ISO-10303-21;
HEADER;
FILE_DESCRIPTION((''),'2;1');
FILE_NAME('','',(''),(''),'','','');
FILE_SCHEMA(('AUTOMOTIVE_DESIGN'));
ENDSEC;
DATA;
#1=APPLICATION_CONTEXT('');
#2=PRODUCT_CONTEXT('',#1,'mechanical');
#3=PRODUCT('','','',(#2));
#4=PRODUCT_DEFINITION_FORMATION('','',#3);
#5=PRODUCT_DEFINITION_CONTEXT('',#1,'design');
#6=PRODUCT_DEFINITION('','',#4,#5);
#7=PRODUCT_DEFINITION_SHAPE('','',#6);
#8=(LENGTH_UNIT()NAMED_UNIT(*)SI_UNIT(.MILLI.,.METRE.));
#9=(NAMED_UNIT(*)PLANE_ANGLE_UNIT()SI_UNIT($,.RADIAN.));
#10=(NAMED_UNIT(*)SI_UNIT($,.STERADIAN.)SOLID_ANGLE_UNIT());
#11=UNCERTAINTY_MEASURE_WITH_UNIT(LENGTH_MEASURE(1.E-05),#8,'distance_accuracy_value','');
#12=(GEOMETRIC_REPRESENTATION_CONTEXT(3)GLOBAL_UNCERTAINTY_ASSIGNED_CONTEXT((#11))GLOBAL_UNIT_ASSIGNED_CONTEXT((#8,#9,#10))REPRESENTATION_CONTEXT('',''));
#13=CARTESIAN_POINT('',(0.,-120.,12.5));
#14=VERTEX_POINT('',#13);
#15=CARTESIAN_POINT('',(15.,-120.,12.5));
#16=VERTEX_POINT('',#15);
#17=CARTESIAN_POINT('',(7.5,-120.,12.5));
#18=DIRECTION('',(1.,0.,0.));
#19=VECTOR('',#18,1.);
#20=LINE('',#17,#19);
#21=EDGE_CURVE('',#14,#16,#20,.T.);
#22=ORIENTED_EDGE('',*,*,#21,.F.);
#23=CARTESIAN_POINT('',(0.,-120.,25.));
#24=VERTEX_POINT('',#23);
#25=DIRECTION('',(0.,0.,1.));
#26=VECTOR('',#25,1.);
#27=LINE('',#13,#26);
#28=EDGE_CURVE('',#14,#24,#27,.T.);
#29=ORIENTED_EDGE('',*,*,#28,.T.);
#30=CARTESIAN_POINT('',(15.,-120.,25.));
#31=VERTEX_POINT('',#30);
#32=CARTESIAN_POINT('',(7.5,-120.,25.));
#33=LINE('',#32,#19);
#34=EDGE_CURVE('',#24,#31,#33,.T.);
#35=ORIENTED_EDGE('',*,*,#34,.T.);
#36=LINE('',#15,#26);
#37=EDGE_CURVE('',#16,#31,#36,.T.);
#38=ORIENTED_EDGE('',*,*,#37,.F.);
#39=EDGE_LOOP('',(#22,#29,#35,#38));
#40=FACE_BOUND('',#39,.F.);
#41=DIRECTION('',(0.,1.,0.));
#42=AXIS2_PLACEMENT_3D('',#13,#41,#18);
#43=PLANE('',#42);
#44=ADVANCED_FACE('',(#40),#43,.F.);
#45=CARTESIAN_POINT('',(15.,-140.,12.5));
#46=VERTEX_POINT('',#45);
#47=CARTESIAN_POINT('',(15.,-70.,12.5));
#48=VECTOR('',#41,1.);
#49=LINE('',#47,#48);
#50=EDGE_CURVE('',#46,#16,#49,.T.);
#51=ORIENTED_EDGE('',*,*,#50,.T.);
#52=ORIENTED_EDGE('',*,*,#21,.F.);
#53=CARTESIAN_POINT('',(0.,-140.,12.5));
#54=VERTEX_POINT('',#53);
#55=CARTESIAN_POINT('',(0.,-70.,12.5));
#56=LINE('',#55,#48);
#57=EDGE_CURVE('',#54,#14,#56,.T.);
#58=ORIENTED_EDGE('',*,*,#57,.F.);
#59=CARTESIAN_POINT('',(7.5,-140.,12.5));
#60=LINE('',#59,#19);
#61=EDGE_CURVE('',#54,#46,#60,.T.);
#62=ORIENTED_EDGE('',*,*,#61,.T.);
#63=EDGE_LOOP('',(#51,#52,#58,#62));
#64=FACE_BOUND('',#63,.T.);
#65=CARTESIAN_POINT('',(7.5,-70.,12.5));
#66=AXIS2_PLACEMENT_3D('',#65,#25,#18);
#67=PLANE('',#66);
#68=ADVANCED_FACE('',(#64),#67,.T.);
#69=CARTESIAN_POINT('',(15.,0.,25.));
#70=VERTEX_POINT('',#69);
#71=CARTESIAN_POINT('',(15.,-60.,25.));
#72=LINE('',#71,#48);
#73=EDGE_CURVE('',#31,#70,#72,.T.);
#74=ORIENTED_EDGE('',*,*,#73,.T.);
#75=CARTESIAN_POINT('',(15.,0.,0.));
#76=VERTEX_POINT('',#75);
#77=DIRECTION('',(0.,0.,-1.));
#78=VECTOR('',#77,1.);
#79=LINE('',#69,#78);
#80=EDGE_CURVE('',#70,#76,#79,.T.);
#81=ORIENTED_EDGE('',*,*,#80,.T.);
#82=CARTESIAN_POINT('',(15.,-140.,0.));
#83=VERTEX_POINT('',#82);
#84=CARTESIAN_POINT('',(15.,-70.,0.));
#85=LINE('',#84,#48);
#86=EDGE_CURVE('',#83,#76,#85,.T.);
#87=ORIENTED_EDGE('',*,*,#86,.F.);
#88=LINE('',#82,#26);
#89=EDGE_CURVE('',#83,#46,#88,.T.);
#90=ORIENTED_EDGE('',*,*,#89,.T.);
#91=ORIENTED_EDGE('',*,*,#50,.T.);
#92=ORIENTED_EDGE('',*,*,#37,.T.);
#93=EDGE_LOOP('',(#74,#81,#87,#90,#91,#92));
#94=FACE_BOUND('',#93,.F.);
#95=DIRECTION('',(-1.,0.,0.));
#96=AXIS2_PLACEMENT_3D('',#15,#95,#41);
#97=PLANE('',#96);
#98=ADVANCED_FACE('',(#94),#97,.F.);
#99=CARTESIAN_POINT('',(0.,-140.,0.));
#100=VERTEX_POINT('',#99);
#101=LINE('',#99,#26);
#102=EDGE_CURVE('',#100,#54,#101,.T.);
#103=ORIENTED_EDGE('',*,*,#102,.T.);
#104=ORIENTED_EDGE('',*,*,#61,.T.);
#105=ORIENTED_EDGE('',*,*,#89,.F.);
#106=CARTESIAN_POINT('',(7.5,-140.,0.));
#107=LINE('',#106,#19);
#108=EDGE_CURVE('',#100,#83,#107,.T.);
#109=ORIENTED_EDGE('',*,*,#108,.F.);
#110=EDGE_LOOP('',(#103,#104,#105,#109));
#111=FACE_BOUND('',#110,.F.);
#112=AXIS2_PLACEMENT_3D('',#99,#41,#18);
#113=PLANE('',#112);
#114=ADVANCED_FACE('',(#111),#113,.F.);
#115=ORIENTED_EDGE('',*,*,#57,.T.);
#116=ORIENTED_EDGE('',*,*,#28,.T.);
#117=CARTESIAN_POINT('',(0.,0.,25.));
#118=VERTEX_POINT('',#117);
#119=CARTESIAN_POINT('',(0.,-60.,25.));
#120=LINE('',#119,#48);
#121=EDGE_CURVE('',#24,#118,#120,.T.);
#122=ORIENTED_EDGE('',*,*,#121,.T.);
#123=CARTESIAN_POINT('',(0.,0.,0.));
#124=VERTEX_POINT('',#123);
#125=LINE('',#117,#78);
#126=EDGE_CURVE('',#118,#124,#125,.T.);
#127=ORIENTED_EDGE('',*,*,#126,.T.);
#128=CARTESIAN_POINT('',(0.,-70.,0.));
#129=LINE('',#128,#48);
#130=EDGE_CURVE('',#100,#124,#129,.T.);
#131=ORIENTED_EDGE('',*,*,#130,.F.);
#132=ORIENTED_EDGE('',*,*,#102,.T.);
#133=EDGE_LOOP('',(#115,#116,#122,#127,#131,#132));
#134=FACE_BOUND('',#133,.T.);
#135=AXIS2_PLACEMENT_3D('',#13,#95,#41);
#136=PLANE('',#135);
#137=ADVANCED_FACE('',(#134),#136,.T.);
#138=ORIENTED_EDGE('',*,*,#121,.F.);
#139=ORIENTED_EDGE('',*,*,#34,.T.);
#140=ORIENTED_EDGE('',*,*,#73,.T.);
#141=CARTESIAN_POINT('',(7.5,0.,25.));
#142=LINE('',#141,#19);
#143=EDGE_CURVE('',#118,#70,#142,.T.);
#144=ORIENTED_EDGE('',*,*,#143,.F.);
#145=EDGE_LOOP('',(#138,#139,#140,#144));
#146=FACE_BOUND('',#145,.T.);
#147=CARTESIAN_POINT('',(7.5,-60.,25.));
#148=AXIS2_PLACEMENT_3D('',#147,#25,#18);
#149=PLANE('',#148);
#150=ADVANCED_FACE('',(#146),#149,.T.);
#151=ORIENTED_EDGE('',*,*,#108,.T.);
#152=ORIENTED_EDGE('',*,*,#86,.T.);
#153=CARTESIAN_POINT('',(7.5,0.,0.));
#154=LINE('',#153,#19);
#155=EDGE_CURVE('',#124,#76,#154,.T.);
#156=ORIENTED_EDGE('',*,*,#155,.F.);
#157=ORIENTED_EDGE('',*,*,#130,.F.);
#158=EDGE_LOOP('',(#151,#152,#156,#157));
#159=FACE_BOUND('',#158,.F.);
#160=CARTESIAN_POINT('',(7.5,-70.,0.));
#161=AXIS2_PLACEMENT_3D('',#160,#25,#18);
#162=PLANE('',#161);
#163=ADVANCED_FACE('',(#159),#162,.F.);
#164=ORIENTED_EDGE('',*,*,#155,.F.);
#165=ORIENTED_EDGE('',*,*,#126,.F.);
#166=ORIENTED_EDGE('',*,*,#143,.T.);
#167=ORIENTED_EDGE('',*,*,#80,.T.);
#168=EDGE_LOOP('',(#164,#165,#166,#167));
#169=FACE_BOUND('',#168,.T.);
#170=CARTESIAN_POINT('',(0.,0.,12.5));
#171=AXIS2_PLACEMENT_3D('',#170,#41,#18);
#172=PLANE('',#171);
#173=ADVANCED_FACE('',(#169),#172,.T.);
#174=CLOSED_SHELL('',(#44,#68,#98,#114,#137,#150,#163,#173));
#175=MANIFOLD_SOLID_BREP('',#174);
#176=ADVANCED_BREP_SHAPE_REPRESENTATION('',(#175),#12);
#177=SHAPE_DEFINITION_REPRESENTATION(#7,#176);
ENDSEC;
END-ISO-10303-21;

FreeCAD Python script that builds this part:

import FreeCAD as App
import Part
import Sketcher

doc = App.newDocument("Part")
body = doc.addObject("PartDesign::Body", "Body")

sketch1 = body.newObject("Sketcher::SketchObject", "Sketch")
sketch1.AttachmentSupport = (doc.getObject("XY_Plane"), [""])
sketch1.MapMode = "FlatFace"
sketch1.addGeometry(Part.LineSegment(App.Vector(0, 0, 0), App.Vector(0, -140, 0)), False)
sketch1.addGeometry(Part.LineSegment(App.Vector(0, -140, 0), App.Vector(15, -140, 0)), False)
sketch1.addGeometry(Part.LineSegment(App.Vector(15, -140, 0), App.Vector(15, 0, 0)), False)
sketch1.addGeometry(Part.LineSegment(App.Vector(15, 0, 0), App.Vector(0, 0, 0)), False)
sketch1.addConstraint(Sketcher.Constraint("Coincident", 0, 2, 1, 1))
sketch1.addConstraint(Sketcher.Constraint("Coincident", 1, 2, 2, 1))
sketch1.addConstraint(Sketcher.Constraint("Coincident", 2, 2, 3, 1))
sketch1.addConstraint(Sketcher.Constraint("Coincident", 3, 2, 0, 1))
sketch1.addConstraint(Sketcher.Constraint("Vertical", 0))
sketch1.addConstraint(Sketcher.Constraint("Horizontal", 1))
sketch1.addConstraint(Sketcher.Constraint("Vertical", 2))
sketch1.addConstraint(Sketcher.Constraint("Horizontal", 3))
sketch1.addConstraint(Sketcher.Constraint("Coincident", 3, 2, -1, 1))
sketch1.addConstraint(Sketcher.Constraint("DistanceX", 1, 1, 1, 2, 15.0))
sketch1.addConstraint(Sketcher.Constraint("DistanceY", 0, 2, 0, 1, 140.0))
pad1 = body.newObject("PartDesign::Pad", "Pad")
pad1.Profile = sketch1
pad1.Length = 12.5

sketch2 = body.newObject("Sketcher::SketchObject", "Sketch001")
sketch2.AttachmentSupport = (doc.getObject("XY_Plane"), [""])
sketch2.MapMode = "FlatFace"
sketch2.AttachmentOffset = App.Placement(App.Vector(0, 0, 12.5), App.Rotation())
sketch2.addGeometry(Part.LineSegment(App.Vector(0, 0, 0), App.Vector(0, -120, 0)), False)
sketch2.addGeometry(Part.LineSegment(App.Vector(0, -120, 0), App.Vector(15, -120, 0)), False)
sketch2.addGeometry(Part.LineSegment(App.Vector(15, -120, 0), App.Vector(15, 0, 0)), False)
sketch2.addGeometry(Part.LineSegment(App.Vector(15, 0, 0), App.Vector(0, 0, 0)), False)
sketch2.addConstraint(Sketcher.Constraint("Coincident", 0, 2, 1, 1))
sketch2.addConstraint(Sketcher.Constraint("Coincident", 1, 2, 2, 1))
sketch2.addConstraint(Sketcher.Constraint("Coincident", 2, 2, 3, 1))
sketch2.addConstraint(Sketcher.Constraint("Coincident", 3, 2, 0, 1))
sketch2.addConstraint(Sketcher.Constraint("Vertical", 0))
sketch2.addConstraint(Sketcher.Constraint("Horizontal", 1))
sketch2.addConstraint(Sketcher.Constraint("Vertical", 2))
sketch2.addConstraint(Sketcher.Constraint("Horizontal", 3))
sketch2.addConstraint(Sketcher.Constraint("Coincident", 3, 2, -1, 1))
sketch2.addConstraint(Sketcher.Constraint("DistanceX", 1, 1, 1, 2, 15.0))
sketch2.addConstraint(Sketcher.Constraint("DistanceY", 0, 2, 0, 1, 120.0))
pad2 = body.newObject("PartDesign::Pad", "Pad001")
pad2.Profile = sketch2
pad2.Length = 12.5

doc.recompute()
